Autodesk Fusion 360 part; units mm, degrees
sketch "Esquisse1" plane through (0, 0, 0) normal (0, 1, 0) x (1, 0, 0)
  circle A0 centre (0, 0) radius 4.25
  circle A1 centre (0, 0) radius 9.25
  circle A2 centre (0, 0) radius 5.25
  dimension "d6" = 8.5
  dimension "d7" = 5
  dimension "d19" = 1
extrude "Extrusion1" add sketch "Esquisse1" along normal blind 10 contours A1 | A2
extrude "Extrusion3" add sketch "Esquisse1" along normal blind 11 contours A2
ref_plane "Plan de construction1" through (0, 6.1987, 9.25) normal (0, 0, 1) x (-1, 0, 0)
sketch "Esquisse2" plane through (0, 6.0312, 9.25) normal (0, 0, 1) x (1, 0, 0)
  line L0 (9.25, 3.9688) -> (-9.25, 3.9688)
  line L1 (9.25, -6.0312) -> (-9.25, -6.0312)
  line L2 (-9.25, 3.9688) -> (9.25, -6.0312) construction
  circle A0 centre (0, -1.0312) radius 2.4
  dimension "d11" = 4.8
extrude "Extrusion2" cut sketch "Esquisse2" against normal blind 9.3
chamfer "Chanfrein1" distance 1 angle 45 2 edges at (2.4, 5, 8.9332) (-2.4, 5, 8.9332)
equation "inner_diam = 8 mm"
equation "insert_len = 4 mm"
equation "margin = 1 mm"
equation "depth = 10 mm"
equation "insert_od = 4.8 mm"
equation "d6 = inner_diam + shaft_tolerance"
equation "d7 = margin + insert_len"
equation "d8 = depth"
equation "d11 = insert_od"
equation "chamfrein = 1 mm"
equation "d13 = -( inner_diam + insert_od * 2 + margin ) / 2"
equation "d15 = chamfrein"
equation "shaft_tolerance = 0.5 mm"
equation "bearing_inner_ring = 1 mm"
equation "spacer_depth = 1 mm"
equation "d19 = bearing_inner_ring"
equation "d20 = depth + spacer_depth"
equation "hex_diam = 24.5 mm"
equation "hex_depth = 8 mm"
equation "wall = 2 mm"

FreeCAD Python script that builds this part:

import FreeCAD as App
import Part
import Sketcher

V = App.Vector
Q = App.Units.Quantity


def edges_at(feature, points):
    """Names of the edges that pass closest to the given points."""
    edges = feature.Shape.Edges
    near = lambda p: min(range(len(edges)), key=lambda i: edges[i].distToShape(Part.Vertex(*p))[0])
    return sorted({f"Edge{near(p) + 1}" for p in points})

doc = App.newDocument("Part")
params = doc.addObject("Spreadsheet::Sheet", "Params")
for row, (alias, value) in enumerate([
    ("sketch1_diameter", "8.5 mm"),
    ("sketch1_diameter2", "18.5 mm"),
    ("pad1_length", "10 mm"),
    ("sketch2_diameter", "8.5 mm"),
    ("sketch2_diameter2", "10.5 mm"),
    ("pad2_length", "11 mm"),
    ("sketch3_diameter", "4.8 mm"),
    ("pocket1_length", "9.3 mm"),
    ("chamfer_size", "1 mm"),
], start=1):
    params.set(f"A{row}", alias)
    params.set(f"B{row}", "=" + value)
    params.setAlias(f"B{row}", alias)

body = doc.addObject("PartDesign::Body", "Body")

# Sketch on XZ plane
sketch1 = doc.addObject("Sketcher::SketchObject", "Sketch")
body.addObject(sketch1)
sketch1.AttachmentSupport = (doc.XZ_Plane, [""])
sketch1.MapMode = "FlatFace"
sketch1.addGeometry([
    Part.Circle(V(0, 0, 0), V(0, 0, 1), 9.2),
    Part.Circle(V(0, 0, 0), V(0, 0, 1), 4.2),
], False)
sketch1.addConstraint([
    Sketcher.Constraint("Coincident", 0, 3, -1, 1),
    Sketcher.Constraint("Coincident", 1, 3, -1, 1),
    Sketcher.Constraint("Diameter", 1, Q("8.5 mm")),
    Sketcher.Constraint("Diameter", 0, Q("18.5 mm")),
])
sketch1.setExpression("Constraints[2]", "Params.sketch1_diameter")
sketch1.setExpression("Constraints[3]", "Params.sketch1_diameter2")
pad1 = doc.addObject("PartDesign::Pad", "Pad")
body.addObject(pad1)
pad1.Profile = sketch1
pad1.setExpression("Length", "Params.pad1_length")
pad1.Reversed = True

# Sketch on XZ plane
sketch2 = doc.addObject("Sketcher::SketchObject", "Sketch001")
body.addObject(sketch2)
sketch2.AttachmentSupport = (doc.XZ_Plane, [""])
sketch2.MapMode = "FlatFace"
sketch2.addGeometry([
    Part.Circle(V(0, 0, 0), V(0, 0, 1), 5.2),
    Part.Circle(V(0, 0, 0), V(0, 0, 1), 4.2),
], False)
sketch2.addConstraint([
    Sketcher.Constraint("Coincident", 0, 3, -1, 1),
    Sketcher.Constraint("Coincident", 1, 3, -1, 1),
    Sketcher.Constraint("Diameter", 1, Q("8.5 mm")),
    Sketcher.Constraint("Diameter", 0, Q("10.5 mm")),
])
sketch2.setExpression("Constraints[2]", "Params.sketch2_diameter")
sketch2.setExpression("Constraints[3]", "Params.sketch2_diameter2")
pad2 = doc.addObject("PartDesign::Pad", "Pad001")
body.addObject(pad2)
pad2.Profile = sketch2
pad2.setExpression("Length", "Params.pad2_length")
pad2.Reversed = True

# Sketch on XY plane
sketch3 = doc.addObject("Sketcher::SketchObject", "Sketch002")
body.addObject(sketch3)
sketch3.AttachmentSupport = (doc.XY_Plane, [""])
sketch3.MapMode = "FlatFace"
sketch3.AttachmentOffset = App.Placement(V(0, 0, 9.25), App.Rotation())
sketch3.addGeometry(Part.Circle(V(0, 5, 0), V(0, 0, 1), 2.4), False)
sketch3.addConstraint([
    Sketcher.Constraint("PointOnObject", 0, 3, -2),
    Sketcher.Constraint("Diameter", 0, Q("4.8 mm")),
    Sketcher.Constraint("DistanceY", -1, 1, 0, 3, Q("5 mm")),
])
sketch3.setExpression("Constraints[1]", "Params.sketch3_diameter")
pocket1 = doc.addObject("PartDesign::Pocket", "Pocket")
body.addObject(pocket1)
pocket1.Profile = sketch3
pocket1.setExpression("Length", "Params.pocket1_length")
doc.recompute()

chamfer = doc.addObject("PartDesign::Chamfer", "Chamfer")
body.addObject(chamfer)
chamfer.Base = (pocket1, edges_at(pocket1, [(2.4, 5, 8.933), (-2.4, 5, 8.933)]))
chamfer.setExpression("Size", "Params.chamfer_size")

doc.recompute()
